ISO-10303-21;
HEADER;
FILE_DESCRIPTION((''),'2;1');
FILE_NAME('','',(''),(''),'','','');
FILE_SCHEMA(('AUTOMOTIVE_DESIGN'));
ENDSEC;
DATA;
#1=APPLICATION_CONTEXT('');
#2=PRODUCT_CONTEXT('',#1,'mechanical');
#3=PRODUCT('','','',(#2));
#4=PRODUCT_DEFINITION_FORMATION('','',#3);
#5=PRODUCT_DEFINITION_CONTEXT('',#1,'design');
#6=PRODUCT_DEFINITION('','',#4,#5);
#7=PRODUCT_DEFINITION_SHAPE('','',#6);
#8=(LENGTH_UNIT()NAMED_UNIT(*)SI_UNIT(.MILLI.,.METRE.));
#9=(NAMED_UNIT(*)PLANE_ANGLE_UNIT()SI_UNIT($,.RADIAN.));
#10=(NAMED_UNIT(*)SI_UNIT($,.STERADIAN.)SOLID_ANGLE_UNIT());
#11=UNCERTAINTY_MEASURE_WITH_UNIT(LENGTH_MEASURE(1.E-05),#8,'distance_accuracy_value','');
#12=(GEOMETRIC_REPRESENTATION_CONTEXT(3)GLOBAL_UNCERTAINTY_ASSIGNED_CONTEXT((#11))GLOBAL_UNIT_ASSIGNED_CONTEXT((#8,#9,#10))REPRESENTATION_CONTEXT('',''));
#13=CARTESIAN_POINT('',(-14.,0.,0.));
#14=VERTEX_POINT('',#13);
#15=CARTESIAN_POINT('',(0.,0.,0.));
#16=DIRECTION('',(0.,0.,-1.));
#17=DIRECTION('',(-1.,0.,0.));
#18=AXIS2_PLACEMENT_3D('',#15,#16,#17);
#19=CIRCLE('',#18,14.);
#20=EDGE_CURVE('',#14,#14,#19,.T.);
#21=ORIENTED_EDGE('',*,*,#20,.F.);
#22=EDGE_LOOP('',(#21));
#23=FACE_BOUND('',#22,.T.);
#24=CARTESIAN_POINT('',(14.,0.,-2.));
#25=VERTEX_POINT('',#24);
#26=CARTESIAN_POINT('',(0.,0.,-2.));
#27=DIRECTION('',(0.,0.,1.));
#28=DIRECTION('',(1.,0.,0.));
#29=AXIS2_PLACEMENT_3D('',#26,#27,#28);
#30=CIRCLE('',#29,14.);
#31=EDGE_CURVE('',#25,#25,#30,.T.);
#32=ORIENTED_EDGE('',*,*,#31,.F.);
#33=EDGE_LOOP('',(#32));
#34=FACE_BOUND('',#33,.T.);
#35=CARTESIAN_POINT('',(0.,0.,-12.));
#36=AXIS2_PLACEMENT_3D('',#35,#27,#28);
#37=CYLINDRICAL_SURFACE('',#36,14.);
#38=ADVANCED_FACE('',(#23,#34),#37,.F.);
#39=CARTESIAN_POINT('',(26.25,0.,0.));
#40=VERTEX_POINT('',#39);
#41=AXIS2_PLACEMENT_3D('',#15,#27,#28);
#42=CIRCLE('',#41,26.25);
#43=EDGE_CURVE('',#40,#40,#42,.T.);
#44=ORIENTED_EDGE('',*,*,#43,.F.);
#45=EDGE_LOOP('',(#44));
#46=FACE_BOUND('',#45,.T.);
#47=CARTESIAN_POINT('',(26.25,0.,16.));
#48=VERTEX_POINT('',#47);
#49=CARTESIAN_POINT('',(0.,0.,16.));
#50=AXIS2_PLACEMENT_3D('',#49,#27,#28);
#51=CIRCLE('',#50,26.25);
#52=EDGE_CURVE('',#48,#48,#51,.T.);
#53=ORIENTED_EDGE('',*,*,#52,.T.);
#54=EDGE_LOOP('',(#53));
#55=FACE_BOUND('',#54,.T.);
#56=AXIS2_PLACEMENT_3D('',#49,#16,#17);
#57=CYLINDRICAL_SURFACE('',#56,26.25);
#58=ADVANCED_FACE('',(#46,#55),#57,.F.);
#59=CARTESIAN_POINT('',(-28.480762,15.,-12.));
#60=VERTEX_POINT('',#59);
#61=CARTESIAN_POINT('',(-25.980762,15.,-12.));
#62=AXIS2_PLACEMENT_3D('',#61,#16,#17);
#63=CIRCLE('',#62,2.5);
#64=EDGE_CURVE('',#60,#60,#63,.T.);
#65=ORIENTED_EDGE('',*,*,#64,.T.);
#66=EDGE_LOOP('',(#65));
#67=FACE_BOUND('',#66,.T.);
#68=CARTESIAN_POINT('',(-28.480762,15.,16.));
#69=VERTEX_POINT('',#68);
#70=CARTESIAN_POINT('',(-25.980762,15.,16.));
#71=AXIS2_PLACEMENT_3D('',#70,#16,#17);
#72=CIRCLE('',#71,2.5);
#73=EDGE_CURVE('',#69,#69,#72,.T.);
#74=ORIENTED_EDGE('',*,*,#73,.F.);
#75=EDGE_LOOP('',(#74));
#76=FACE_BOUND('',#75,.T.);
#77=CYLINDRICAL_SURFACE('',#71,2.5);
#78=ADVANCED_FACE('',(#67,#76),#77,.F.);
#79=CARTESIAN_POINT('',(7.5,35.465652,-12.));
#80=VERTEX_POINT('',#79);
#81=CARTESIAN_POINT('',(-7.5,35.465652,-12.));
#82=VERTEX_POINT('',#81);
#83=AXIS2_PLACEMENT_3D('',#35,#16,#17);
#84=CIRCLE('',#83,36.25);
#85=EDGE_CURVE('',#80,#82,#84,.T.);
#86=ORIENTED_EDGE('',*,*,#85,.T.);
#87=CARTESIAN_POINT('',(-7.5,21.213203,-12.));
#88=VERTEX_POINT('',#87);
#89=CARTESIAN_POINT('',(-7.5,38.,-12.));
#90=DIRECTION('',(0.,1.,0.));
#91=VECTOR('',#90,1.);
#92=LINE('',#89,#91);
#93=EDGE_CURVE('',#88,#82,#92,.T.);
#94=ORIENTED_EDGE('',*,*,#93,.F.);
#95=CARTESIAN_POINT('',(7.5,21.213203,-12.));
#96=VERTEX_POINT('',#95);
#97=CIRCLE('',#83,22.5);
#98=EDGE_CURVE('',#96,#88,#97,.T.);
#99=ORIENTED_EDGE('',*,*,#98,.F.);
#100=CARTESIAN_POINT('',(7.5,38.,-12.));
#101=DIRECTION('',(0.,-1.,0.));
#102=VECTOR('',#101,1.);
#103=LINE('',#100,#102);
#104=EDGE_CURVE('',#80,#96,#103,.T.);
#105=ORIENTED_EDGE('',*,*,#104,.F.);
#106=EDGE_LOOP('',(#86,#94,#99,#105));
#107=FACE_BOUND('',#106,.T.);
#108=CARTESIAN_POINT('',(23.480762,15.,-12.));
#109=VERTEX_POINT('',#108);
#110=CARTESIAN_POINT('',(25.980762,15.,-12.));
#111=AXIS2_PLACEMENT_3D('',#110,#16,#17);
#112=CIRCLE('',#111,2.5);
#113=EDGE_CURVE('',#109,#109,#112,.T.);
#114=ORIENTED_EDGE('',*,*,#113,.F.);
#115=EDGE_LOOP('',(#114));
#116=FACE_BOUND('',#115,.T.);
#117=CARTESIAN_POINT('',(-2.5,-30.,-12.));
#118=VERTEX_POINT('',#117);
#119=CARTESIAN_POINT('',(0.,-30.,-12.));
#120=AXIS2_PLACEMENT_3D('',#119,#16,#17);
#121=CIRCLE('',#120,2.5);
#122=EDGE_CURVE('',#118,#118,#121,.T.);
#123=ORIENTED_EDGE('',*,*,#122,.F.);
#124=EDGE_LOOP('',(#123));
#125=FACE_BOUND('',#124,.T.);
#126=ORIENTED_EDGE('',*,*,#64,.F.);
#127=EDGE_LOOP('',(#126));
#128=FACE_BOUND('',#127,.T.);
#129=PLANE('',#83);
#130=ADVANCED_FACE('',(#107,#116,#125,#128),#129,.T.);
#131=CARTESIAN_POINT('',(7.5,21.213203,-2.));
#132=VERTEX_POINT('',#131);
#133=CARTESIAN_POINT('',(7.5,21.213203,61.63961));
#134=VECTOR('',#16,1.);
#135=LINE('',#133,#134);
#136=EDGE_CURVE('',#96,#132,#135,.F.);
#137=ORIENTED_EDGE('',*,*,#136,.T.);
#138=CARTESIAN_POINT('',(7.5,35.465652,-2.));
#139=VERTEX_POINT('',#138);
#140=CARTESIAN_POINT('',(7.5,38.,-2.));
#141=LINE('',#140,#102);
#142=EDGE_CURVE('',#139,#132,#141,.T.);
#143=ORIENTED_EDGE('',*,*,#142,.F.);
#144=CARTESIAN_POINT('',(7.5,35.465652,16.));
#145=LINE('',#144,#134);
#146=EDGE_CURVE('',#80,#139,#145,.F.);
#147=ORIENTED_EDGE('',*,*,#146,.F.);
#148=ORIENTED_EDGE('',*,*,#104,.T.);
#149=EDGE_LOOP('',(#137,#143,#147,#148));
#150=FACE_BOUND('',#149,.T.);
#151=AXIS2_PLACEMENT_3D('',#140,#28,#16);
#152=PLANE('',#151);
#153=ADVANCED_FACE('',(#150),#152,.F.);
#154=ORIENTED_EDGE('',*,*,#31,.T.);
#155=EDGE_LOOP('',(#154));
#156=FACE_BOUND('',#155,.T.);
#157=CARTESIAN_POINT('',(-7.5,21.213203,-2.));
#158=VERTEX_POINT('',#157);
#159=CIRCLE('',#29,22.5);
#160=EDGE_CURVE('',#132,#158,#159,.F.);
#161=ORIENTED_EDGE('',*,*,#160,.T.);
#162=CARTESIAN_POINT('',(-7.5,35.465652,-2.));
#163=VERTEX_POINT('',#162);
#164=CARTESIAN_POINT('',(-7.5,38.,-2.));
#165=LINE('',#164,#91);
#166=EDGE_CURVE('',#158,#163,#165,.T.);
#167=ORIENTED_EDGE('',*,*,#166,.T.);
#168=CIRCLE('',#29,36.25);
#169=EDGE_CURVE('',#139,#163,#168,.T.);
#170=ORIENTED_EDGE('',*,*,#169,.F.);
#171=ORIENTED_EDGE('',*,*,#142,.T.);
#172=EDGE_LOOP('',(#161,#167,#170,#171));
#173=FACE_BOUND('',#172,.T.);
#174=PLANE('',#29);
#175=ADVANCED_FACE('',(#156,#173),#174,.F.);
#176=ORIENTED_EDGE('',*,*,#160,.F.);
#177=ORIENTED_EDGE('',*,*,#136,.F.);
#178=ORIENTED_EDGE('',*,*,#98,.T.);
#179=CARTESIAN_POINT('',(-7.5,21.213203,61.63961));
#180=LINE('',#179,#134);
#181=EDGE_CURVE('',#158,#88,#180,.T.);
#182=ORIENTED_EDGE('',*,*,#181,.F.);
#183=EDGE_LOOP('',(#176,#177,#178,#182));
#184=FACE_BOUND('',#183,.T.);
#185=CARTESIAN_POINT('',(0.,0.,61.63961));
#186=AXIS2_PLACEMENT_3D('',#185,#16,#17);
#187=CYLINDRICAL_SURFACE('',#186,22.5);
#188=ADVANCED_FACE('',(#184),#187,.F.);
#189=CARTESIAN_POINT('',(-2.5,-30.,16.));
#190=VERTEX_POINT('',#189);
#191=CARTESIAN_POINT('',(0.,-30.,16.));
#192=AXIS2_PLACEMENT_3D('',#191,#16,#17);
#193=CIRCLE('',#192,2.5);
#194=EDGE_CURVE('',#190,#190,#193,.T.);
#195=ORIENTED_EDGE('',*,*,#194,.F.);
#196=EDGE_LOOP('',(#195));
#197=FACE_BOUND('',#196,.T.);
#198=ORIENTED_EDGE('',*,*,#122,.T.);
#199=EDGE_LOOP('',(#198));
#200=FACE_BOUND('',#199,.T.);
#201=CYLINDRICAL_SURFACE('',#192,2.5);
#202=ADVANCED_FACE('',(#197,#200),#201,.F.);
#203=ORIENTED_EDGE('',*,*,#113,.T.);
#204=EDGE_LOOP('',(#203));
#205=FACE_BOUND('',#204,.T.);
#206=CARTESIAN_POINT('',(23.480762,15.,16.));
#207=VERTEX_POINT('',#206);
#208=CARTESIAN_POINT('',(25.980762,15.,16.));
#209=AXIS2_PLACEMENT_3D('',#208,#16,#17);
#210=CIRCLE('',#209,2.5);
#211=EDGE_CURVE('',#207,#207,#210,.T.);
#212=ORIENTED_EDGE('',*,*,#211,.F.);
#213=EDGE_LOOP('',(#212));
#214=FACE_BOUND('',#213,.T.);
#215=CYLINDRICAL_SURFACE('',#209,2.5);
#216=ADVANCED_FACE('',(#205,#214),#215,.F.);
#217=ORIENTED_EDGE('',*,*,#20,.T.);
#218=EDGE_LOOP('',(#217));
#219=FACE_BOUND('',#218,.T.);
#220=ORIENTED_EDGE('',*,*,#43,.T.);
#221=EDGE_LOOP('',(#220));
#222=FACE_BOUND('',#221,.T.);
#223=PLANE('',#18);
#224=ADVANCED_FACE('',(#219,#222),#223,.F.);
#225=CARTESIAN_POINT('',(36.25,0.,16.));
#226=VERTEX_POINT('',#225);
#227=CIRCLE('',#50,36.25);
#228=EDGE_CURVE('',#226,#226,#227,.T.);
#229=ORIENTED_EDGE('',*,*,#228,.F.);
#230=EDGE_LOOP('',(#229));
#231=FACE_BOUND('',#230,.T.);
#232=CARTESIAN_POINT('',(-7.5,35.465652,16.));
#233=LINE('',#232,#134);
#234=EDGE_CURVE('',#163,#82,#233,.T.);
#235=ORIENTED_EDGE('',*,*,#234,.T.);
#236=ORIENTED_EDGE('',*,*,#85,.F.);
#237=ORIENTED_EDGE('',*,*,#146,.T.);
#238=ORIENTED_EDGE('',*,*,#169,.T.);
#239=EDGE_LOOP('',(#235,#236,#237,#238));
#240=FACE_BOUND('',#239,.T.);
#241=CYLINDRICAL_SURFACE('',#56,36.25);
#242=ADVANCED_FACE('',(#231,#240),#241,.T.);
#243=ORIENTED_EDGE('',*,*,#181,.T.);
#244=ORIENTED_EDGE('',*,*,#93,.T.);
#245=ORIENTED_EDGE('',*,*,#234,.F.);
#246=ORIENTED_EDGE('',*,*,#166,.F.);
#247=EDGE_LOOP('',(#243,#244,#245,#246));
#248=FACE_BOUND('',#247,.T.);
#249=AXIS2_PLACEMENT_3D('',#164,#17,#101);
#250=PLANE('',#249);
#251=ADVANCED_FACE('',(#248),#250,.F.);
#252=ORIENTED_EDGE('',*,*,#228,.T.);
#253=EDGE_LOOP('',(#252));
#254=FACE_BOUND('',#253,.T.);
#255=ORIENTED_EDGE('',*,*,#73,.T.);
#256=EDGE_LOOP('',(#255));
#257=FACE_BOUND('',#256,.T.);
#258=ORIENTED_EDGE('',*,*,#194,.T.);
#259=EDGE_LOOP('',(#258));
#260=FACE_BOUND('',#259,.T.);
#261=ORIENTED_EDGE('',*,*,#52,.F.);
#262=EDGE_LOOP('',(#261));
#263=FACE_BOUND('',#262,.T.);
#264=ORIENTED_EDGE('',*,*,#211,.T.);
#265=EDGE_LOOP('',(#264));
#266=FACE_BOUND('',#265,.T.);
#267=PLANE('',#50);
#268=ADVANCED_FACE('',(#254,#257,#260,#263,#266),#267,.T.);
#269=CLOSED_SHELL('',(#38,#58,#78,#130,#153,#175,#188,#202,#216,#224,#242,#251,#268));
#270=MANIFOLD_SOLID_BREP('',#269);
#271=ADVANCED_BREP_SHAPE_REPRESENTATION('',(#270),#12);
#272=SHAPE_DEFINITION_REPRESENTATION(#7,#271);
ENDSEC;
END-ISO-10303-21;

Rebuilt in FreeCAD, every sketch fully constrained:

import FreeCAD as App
import Part
import Sketcher

V = App.Vector


def add_polygon(sketch, points):
    """Adds a closed chain of lines whose ends are joined by coincident constraints."""
    first, n = sketch.GeometryCount, len(points)
    for a, b in zip(points, points[1:] + points[:1]):
        sketch.addGeometry(Part.LineSegment(App.Vector(*a, 0), App.Vector(*b, 0)), False)
    for i in range(n):
        sketch.addConstraint(Sketcher.Constraint("Coincident", first + i, 2, first + (i + 1) % n, 1))

doc = App.newDocument("Part")
body = doc.addObject("PartDesign::Body", "Body")

# Sketch on XY plane
sketch1 = body.newObject("Sketcher::SketchObject", "Sketch")
sketch1.AttachmentSupport = (doc.getObject("XY_Plane"), [""])
sketch1.MapMode = "FlatFace"
sketch1.addGeometry([
    Part.Circle(V(0, 0, 0), V(0, 0, 1), 36),
    Part.Circle(V(0, 0, 0), V(0, 0, 1), 26),
], False)
sketch1.addConstraint([
    Sketcher.Constraint("Coincident", 0, 3, -1, 1),
    Sketcher.Constraint("Coincident", 1, 3, -1, 1),
    Sketcher.Constraint("Diameter", 0, 72.5),
    Sketcher.Constraint("Diameter", 1, 52.5),
])
pad1 = body.newObject("PartDesign::Pad", "Pad")
pad1.Profile = sketch1
pad1.Length = 16

# Sketch on XY plane
sketch2 = body.newObject("Sketcher::SketchObject", "Sketch001")
sketch2.AttachmentSupport = (doc.getObject("XY_Plane"), [""])
sketch2.MapMode = "FlatFace"
sketch2.AttachmentOffset = App.Placement(V(0, 0, -12), App.Rotation())
sketch2.addGeometry([
    Part.Circle(V(0, 0, 0), V(0, 0, 1), 36),
    Part.Circle(V(0, 0, 0), V(0, 0, 1), 14),
], False)
sketch2.addConstraint([
    Sketcher.Constraint("Coincident", 0, 3, -1, 1),
    Sketcher.Constraint("Coincident", 1, 3, -1, 1),
    Sketcher.Constraint("Diameter", 1, 28.0),
    Sketcher.Constraint("Diameter", 0, 72.5),
])
pad2 = body.newObject("PartDesign::Pad", "Pad001")
pad2.Profile = sketch2
pad2.Length = 12

# Sketch on XY plane
sketch3 = body.newObject("Sketcher::SketchObject", "Sketch002")
sketch3.AttachmentSupport = (doc.getObject("XY_Plane"), [""])
sketch3.MapMode = "FlatFace"
sketch3.AttachmentOffset = App.Placement(V(0, 0, -12), App.Rotation())
add_polygon(sketch3, [(8, 38), (8, 8), (-8, 8), (-8, 38)])  # lines 0-3
sketch3.addConstraint([
    Sketcher.Constraint("Vertical", 0),
    Sketcher.Constraint("Horizontal", 1),
    Sketcher.Constraint("Vertical", 2),
    Sketcher.Constraint("Horizontal", 3),
    Sketcher.Constraint("DistanceX", 1, 2, 1, 1, 15.0),
    Sketcher.Constraint("DistanceY", 0, 2, 0, 1, 30.0),
    Sketcher.Constraint("DistanceY", -1, 1, 0, 2, 8.0),
    Sketcher.Constraint("DistanceX", -1, 1, 0, 2, 7.5),
])
pocket1 = body.newObject("PartDesign::Pocket", "Pocket")
pocket1.Profile = sketch3
pocket1.Length = 10
pocket1.Reversed = True

# Sketch on XY plane
sketch4 = body.newObject("Sketcher::SketchObject", "Sketch003")
sketch4.AttachmentSupport = (doc.getObject("XY_Plane"), [""])
sketch4.MapMode = "FlatFace"
sketch4.AttachmentOffset = App.Placement(V(0, 0, -12), App.Rotation())
sketch4.addGeometry(Part.Circle(V(0, 0, 0), V(0, 0, 1), 22), False)
sketch4.addConstraint([
    Sketcher.Constraint("Coincident", 0, 3, -1, 1),
    Sketcher.Constraint("Diameter", 0, 45.0),
])
pocket2 = body.newObject("PartDesign::Pocket", "Pocket001")
pocket2.Profile = sketch4
pocket2.Length = 10
pocket2.Reversed = True

# Sketch on XY plane
sketch5 = body.newObject("Sketcher::SketchObject", "Sketch004")
sketch5.AttachmentSupport = (doc.getObject("XY_Plane"), [""])
sketch5.MapMode = "FlatFace"
sketch5.AttachmentOffset = App.Placement(V(0, 0, -12), App.Rotation())
sketch5.addGeometry([
    Part.Circle(V(26, 15, 0), V(0, 0, 1), 2.5),
    Part.Circle(V(-26, 15, 0), V(0, 0, 1), 2.5),
    Part.Circle(V(0, -30, 0), V(0, 0, 1), 2.5),
], False)
sketch5.addConstraint([
    Sketcher.Constraint("Equal", 0, 1),
    Sketcher.Constraint("Equal", 1, 2),
    Sketcher.Constraint("Symmetric", 0, 3, 1, 3, -2),
    Sketcher.Constraint("PointOnObject", 2, 3, -2),
    Sketcher.Constraint("Diameter", 0, 5.0),
    Sketcher.Constraint("DistanceY", -1, 1, 0, 3, 15.0),
    Sketcher.Constraint("DistanceY", 2, 3, -1, 1, 30.0),
    Sketcher.Constraint("DistanceX", -1, 1, 0, 3, 25.980762),
])
pocket3 = body.newObject("PartDesign::Pocket", "Pocket002")
pocket3.Profile = sketch5
pocket3.Type = "ThroughAll"
pocket3.Reversed = True

doc.recompute()
